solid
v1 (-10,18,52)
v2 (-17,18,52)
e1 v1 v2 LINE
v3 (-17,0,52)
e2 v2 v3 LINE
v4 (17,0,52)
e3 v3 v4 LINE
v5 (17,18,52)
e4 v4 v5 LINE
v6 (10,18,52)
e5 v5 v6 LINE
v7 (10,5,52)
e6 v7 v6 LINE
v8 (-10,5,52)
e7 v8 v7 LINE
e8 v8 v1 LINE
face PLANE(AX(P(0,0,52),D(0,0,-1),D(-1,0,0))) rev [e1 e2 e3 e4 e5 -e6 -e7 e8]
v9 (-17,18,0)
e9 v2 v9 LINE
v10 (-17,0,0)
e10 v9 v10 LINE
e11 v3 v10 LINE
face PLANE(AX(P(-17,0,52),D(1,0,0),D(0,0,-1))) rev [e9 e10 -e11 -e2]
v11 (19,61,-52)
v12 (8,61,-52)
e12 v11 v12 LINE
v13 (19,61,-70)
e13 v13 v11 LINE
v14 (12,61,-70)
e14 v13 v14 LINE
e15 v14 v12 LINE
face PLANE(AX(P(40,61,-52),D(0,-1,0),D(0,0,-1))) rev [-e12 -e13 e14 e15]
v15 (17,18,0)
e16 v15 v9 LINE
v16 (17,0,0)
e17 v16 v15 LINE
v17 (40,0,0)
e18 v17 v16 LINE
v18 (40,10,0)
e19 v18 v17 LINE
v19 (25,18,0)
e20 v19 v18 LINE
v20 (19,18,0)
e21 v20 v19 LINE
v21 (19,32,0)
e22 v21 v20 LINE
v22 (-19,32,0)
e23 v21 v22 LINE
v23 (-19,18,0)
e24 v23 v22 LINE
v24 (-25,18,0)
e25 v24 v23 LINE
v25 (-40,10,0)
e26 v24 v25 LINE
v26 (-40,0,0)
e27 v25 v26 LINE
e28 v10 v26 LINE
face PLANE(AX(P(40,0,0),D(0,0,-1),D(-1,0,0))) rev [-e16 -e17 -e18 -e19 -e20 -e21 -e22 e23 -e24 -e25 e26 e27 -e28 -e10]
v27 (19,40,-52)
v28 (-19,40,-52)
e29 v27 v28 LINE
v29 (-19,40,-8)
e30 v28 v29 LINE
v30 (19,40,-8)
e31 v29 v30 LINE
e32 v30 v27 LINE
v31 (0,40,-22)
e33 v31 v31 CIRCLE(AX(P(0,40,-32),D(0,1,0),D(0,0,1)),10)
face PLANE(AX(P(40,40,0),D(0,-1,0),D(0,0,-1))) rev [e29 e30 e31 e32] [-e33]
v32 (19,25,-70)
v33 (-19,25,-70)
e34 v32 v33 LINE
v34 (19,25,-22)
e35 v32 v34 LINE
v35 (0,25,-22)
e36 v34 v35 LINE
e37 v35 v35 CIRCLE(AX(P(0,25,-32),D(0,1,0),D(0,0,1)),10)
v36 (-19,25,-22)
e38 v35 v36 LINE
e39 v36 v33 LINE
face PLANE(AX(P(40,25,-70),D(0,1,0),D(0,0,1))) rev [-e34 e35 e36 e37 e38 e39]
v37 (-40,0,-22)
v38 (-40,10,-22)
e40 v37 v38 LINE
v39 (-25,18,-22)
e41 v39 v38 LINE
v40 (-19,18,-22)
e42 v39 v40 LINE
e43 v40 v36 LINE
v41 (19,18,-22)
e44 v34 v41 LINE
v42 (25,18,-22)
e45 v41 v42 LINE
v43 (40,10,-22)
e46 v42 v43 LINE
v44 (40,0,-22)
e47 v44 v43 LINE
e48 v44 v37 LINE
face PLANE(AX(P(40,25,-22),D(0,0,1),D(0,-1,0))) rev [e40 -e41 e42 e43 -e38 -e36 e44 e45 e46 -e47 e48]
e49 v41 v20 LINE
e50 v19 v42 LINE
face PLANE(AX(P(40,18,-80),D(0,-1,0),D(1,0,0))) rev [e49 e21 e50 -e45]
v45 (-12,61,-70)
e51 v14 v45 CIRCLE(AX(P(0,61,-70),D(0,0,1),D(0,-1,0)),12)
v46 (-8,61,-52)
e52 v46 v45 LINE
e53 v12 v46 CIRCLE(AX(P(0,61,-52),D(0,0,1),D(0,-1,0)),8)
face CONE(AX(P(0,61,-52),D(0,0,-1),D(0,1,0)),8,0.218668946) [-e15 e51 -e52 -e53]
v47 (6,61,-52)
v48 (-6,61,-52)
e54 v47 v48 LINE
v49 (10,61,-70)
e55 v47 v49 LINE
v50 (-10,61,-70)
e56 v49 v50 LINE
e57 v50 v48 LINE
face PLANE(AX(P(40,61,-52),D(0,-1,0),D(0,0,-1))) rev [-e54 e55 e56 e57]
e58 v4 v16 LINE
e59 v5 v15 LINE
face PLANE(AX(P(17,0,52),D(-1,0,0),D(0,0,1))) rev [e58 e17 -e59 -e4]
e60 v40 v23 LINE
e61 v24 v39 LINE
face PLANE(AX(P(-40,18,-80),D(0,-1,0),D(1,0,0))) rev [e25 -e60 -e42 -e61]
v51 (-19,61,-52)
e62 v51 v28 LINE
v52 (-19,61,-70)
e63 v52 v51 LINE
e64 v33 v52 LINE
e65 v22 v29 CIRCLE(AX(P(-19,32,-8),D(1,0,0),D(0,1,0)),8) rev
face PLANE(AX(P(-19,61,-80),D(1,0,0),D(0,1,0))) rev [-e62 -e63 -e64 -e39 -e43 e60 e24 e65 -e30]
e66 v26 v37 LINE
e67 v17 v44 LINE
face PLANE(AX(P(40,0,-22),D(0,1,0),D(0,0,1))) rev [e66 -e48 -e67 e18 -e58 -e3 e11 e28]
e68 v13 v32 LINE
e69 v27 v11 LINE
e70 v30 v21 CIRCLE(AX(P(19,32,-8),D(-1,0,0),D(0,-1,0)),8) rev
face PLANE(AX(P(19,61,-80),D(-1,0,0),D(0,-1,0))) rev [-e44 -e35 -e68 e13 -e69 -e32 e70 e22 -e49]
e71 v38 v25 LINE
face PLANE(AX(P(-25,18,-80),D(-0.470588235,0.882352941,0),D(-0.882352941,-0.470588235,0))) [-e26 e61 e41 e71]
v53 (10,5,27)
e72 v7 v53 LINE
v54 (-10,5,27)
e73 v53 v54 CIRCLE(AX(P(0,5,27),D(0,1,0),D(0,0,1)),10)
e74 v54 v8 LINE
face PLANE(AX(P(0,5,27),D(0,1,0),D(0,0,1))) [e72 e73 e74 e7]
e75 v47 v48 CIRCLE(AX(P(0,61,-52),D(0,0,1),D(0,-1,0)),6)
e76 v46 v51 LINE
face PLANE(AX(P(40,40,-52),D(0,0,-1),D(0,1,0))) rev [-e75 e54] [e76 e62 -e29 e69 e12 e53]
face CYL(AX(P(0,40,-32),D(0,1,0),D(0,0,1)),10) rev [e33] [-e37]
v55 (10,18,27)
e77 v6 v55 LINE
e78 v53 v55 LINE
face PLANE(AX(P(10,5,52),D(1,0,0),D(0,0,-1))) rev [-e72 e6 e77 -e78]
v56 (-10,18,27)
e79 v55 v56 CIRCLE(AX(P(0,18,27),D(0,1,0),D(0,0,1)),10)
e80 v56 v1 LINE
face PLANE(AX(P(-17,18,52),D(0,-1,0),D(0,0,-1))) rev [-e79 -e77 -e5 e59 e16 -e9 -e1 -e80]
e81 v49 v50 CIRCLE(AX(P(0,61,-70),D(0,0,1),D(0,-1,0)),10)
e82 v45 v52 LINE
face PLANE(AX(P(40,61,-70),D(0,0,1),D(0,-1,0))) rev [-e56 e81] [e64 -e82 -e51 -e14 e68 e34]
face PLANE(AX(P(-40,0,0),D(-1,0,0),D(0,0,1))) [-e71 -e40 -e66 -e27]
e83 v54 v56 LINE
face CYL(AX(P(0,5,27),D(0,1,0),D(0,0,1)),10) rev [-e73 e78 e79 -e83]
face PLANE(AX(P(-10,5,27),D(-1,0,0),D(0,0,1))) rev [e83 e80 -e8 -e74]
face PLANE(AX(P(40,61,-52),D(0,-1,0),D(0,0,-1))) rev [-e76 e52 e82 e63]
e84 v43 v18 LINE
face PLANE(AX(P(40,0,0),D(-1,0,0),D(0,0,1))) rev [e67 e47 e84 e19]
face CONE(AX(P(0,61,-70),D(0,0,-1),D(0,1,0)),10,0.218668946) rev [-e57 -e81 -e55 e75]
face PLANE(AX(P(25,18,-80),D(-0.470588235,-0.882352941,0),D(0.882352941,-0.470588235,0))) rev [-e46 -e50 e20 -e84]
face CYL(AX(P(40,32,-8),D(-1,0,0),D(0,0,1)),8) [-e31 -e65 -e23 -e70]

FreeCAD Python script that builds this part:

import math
import FreeCAD as App
import Part
import Sketcher
from FreeCAD import Vector


def edges_at(feature, points):
    """Names of the edges that pass closest to the given points."""
    edges = feature.Shape.Edges
    near = lambda p: min(range(len(edges)), key=lambda i: edges[i].distToShape(Part.Vertex(*p))[0])
    return sorted({f"Edge{near(p) + 1}" for p in points})

doc = App.newDocument("Part")
params = doc.addObject("Spreadsheet::Sheet", "Params")
for row, (alias, value) in enumerate([
    ("sketch1_width", "40 mm"),
    ("sketch1_width2", "25 mm"),
    ("sketch1_width3", "36 mm"),
    ("sketch1_height", "22 mm"),
    ("sketch1_height2", "48 mm"),
    ("pad1_length", "80 mm"),
    ("sketch2_width", "21 mm"),
    ("sketch2_height", "43 mm"),
    ("pocket1_length", "80 mm"),
    ("sketch3_width", "15 mm"),
    ("sketch3_height", "8 mm"),
    ("pocket2_length", "80 mm"),
    ("sketch4_width", "34 mm"),
    ("sketch4_height", "18 mm"),
    ("pad2_length", "52 mm"),
    ("sketch5_radius", "10 mm"),
    ("sketch5_height", "25 mm"),
    ("pocket3_length", "13 mm"),
    ("sketch6_width", "2 mm"),
    ("revolution_angle", "360 deg"),
    ("sketch7_diameter", "20 mm"),
    ("hole_diameter", "20 mm"),
    ("fillet_radius", "8 mm"),
], start=1):
    params.set(f"A{row}", alias)
    params.set(f"B{row}", "=" + value)
    params.setAlias(f"B{row}", alias)

body = doc.addObject("PartDesign::Body", "Body")

sketch1 = body.newObject("Sketcher::SketchObject", "Sketch")
sketch1.AttachmentSupport = (doc.getObject("YZ_Plane"), [""])
sketch1.MapMode = "FlatFace"
sketch1.addGeometry([
    Part.LineSegment(Vector(40, 0, 0), Vector(0, 0, 0)),
    Part.LineSegment(Vector(0, 0, 0), Vector(0, -22, 0)),
    Part.LineSegment(Vector(0, -22, 0), Vector(25, -22, 0)),
    Part.LineSegment(Vector(25, -22, 0), Vector(25, -70, 0)),
    Part.LineSegment(Vector(25, -70, 0), Vector(61, -70, 0)),
    Part.LineSegment(Vector(61, -70, 0), Vector(61, -52, 0)),
    Part.LineSegment(Vector(61, -52, 0), Vector(40, -52, 0)),
    Part.LineSegment(Vector(40, -52, 0), Vector(40, 0, 0)),
], False)
sketch1.addConstraint([
    Sketcher.Constraint("Coincident", 0, 2, 1, 1),
    Sketcher.Constraint("Coincident", 1, 2, 2, 1),
    Sketcher.Constraint("Coincident", 2, 2, 3, 1),
    Sketcher.Constraint("Coincident", 3, 2, 4, 1),
    Sketcher.Constraint("Coincident", 4, 2, 5, 1),
    Sketcher.Constraint("Coincident", 5, 2, 6, 1),
    Sketcher.Constraint("Coincident", 6, 2, 7, 1),
    Sketcher.Constraint("Coincident", 7, 2, 0, 1),
    Sketcher.Constraint("Horizontal", 0),
    Sketcher.Constraint("Vertical", 1),
    Sketcher.Constraint("Horizontal", 2),
    Sketcher.Constraint("Vertical", 3),
    Sketcher.Constraint("Horizontal", 4),
    Sketcher.Constraint("Vertical", 5),
    Sketcher.Constraint("Horizontal", 6),
    Sketcher.Constraint("Vertical", 7),
    Sketcher.Constraint("Coincident", 0, 2, -1, 1),
    Sketcher.Constraint("DistanceX", 0, 2, 0, 1, 40.0),
    Sketcher.Constraint("DistanceX", 2, 1, 2, 2, 25.0),
    Sketcher.Constraint("DistanceX", 4, 1, 4, 2, 36.0),
    Sketcher.Constraint("DistanceY", 1, 2, 1, 1, 22.0),
    Sketcher.Constraint("DistanceY", 3, 2, 3, 1, 48.0),
    Sketcher.Constraint("DistanceY", 5, 1, 5, 2, 18.0),
])
sketch1.setExpression("Constraints[17]", "Params.sketch1_width")
sketch1.setExpression("Constraints[18]", "Params.sketch1_width2")
sketch1.setExpression("Constraints[19]", "Params.sketch1_width3")
sketch1.setExpression("Constraints[20]", "Params.sketch1_height")
sketch1.setExpression("Constraints[21]", "Params.sketch1_height2")
pad1 = body.newObject("PartDesign::Pad", "Pad")
pad1.Profile = sketch1
pad1.setExpression("Length", "Params.pad1_length")
pad1.Midplane = True

sketch2 = body.newObject("Sketcher::SketchObject", "Sketch001")
sketch2.AttachmentSupport = (doc.getObject("XY_Plane"), [""])
sketch2.MapMode = "FlatFace"
sketch2.addGeometry([
    Part.LineSegment(Vector(-40, 61, 0), Vector(-40, 18, 0)),
    Part.LineSegment(Vector(-40, 18, 0), Vector(-19, 18, 0)),
    Part.LineSegment(Vector(-19, 18, 0), Vector(-19, 61, 0)),
    Part.LineSegment(Vector(-19, 61, 0), Vector(-40, 61, 0)),
    Part.LineSegment(Vector(19, 61, 0), Vector(19, 18, 0)),
    Part.LineSegment(Vector(19, 18, 0), Vector(40, 18, 0)),
    Part.LineSegment(Vector(40, 18, 0), Vector(40, 61, 0)),
    Part.LineSegment(Vector(40, 61, 0), Vector(19, 61, 0)),
], False)
sketch2.addConstraint([
    Sketcher.Constraint("Coincident", 0, 2, 1, 1),
    Sketcher.Constraint("Coincident", 1, 2, 2, 1),
    Sketcher.Constraint("Coincident", 2, 2, 3, 1),
    Sketcher.Constraint("Coincident", 3, 2, 0, 1),
    Sketcher.Constraint("Coincident", 4, 2, 5, 1),
    Sketcher.Constraint("Coincident", 5, 2, 6, 1),
    Sketcher.Constraint("Coincident", 6, 2, 7, 1),
    Sketcher.Constraint("Coincident", 7, 2, 4, 1),
    Sketcher.Constraint("Vertical", 0),
    Sketcher.Constraint("Horizontal", 1),
    Sketcher.Constraint("Vertical", 2),
    Sketcher.Constraint("Horizontal", 3),
    Sketcher.Constraint("Vertical", 4),
    Sketcher.Constraint("Horizontal", 5),
    Sketcher.Constraint("Vertical", 6),
    Sketcher.Constraint("Horizontal", 7),
    Sketcher.Constraint("Symmetric", 1, 2, 4, 2, -2),
    Sketcher.Constraint("Symmetric", 3, 2, 6, 2, -2),
    Sketcher.Constraint("DistanceX", 1, 1, 1, 2, 21.0),
    Sketcher.Constraint("DistanceY", 0, 2, 0, 1, 43.0),
    Sketcher.Constraint("DistanceX", 0, 2, -1, 1, 40.0),
    Sketcher.Constraint("DistanceY", -1, 1, 0, 2, 18.0),
])
sketch2.setExpression("Constraints[18]", "Params.sketch2_width")
sketch2.setExpression("Constraints[19]", "Params.sketch2_height")
pocket1 = body.newObject("PartDesign::Pocket", "Pocket")
pocket1.Profile = sketch2
pocket1.setExpression("Length", "Params.pocket1_length")

sketch3 = body.newObject("Sketcher::SketchObject", "Sketch002")
sketch3.AttachmentSupport = (doc.getObject("XY_Plane"), [""])
sketch3.MapMode = "FlatFace"
sketch3.addGeometry([
    Part.LineSegment(Vector(25, 18, 0), Vector(40, 10, 0)),
    Part.LineSegment(Vector(40, 10, 0), Vector(40, 18, 0)),
    Part.LineSegment(Vector(40, 18, 0), Vector(25, 18, 0)),
], False)
sketch3.addConstraint([
    Sketcher.Constraint("Coincident", 0, 2, 1, 1),
    Sketcher.Constraint("Coincident", 1, 2, 2, 1),
    Sketcher.Constraint("Coincident", 2, 2, 0, 1),
    Sketcher.Constraint("Vertical", 1),
    Sketcher.Constraint("Horizontal", 2),
    Sketcher.Constraint("DistanceX", 2, 2, 2, 1, 15.0),
    Sketcher.Constraint("DistanceY", 1, 1, 1, 2, 8.0),
    Sketcher.Constraint("DistanceX", -1, 1, 0, 2, 40.0),
    Sketcher.Constraint("DistanceY", -1, 1, 0, 2, 10.0),
])
sketch3.setExpression("Constraints[5]", "Params.sketch3_width")
sketch3.setExpression("Constraints[6]", "Params.sketch3_height")
pocket2 = body.newObject("PartDesign::Pocket", "Pocket001")
pocket2.Profile = sketch3
pocket2.setExpression("Length", "Params.pocket2_length")
doc.recompute()

mirrored = body.newObject("PartDesign::Mirrored", "Mirrored")
mirrored.Originals = [pocket2]
mirrored.MirrorPlane = (doc.getObject("YZ_Plane"), [""])
body.Tip = mirrored

sketch4 = body.newObject("Sketcher::SketchObject", "Sketch003")
sketch4.AttachmentSupport = (doc.getObject("XY_Plane"), [""])
sketch4.MapMode = "FlatFace"
sketch4.addGeometry([
    Part.LineSegment(Vector(-17, 18, 0), Vector(-17, 0, 0)),
    Part.LineSegment(Vector(-17, 0, 0), Vector(17, 0, 0)),
    Part.LineSegment(Vector(17, 0, 0), Vector(17, 18, 0)),
    Part.LineSegment(Vector(17, 18, 0), Vector(-17, 18, 0)),
], False)
sketch4.addConstraint([
    Sketcher.Constraint("Coincident", 0, 2, 1, 1),
    Sketcher.Constraint("Coincident", 1, 2, 2, 1),
    Sketcher.Constraint("Coincident", 2, 2, 3, 1),
    Sketcher.Constraint("Coincident", 3, 2, 0, 1),
    Sketcher.Constraint("Vertical", 0),
    Sketcher.Constraint("Horizontal", 1),
    Sketcher.Constraint("Vertical", 2),
    Sketcher.Constraint("Horizontal", 3),
    Sketcher.Constraint("Symmetric", 0, 2, 1, 2, -1, 1),
    Sketcher.Constraint("DistanceX", 1, 1, 1, 2, 34.0),
    Sketcher.Constraint("DistanceY", 0, 2, 0, 1, 18.0),
])
sketch4.setExpression("Constraints[9]", "Params.sketch4_width")
sketch4.setExpression("Constraints[10]", "Params.sketch4_height")
pad2 = body.newObject("PartDesign::Pad", "Pad001")
pad2.Profile = sketch4
pad2.setExpression("Length", "Params.pad2_length")

sketch5 = body.newObject("Sketcher::SketchObject", "Sketch004")
sketch5.AttachmentSupport = (doc.getObject("XZ_Plane"), [""])
sketch5.MapMode = "FlatFace"
sketch5.AttachmentOffset = App.Placement(Vector(0, 0, -18), App.Rotation())
sketch5.addGeometry([
    Part.LineSegment(Vector(-10, 27, 0), Vector(-10, 52, 0)),
    Part.LineSegment(Vector(-10, 52, 0), Vector(10, 52, 0)),
    Part.LineSegment(Vector(10, 52, 0), Vector(10, 27, 0)),
    Part.ArcOfCircle(Part.Circle(Vector(0, 27, 0), Vector(0, 0, 1), 10), math.radians(180), math.radians(360)),
], False)
sketch5.addConstraint([
    Sketcher.Constraint("Coincident", 0, 2, 1, 1),
    Sketcher.Constraint("Coincident", 1, 2, 2, 1),
    Sketcher.Constraint("Tangent", 2, 2, 3, 2),
    Sketcher.Constraint("Tangent", 3, 1, 0, 1),
    Sketcher.Constraint("Vertical", 0),
    Sketcher.Constraint("Horizontal", 1),
    Sketcher.Constraint("Vertical", 2),
    Sketcher.Constraint("PointOnObject", 3, 3, -2),
    Sketcher.Constraint("Radius", 3, 10.0),
    Sketcher.Constraint("DistanceY", 0, 1, 0, 2, 25.0),
    Sketcher.Constraint("DistanceY", -1, 1, 3, 3, 27.0),
])
sketch5.setExpression("Constraints[8]", "Params.sketch5_radius")
sketch5.setExpression("Constraints[9]", "Params.sketch5_height")
pocket3 = body.newObject("PartDesign::Pocket", "Pocket002")
pocket3.Profile = sketch5
pocket3.setExpression("Length", "Params.pocket3_length")
pocket3.Reversed = True

sketch6 = body.newObject("Sketcher::SketchObject", "Sketch005")
sketch6.AttachmentSupport = (doc.getObject("XZ_Plane"), [""])
sketch6.MapMode = "FlatFace"
sketch6.AttachmentOffset = App.Placement(Vector(0, 0, -61), App.Rotation())
sketch6.addGeometry([
    Part.LineSegment(Vector(10, -70, 0), Vector(6, -52, 0)),
    Part.LineSegment(Vector(6, -52, 0), Vector(8, -52, 0)),
    Part.LineSegment(Vector(8, -52, 0), Vector(12, -70, 0)),
    Part.LineSegment(Vector(12, -70, 0), Vector(10, -70, 0)),
], False)
sketch6.addConstraint([
    Sketcher.Constraint("Coincident", 0, 2, 1, 1),
    Sketcher.Constraint("Coincident", 1, 2, 2, 1),
    Sketcher.Constraint("Coincident", 2, 2, 3, 1),
    Sketcher.Constraint("Coincident", 3, 2, 0, 1),
    Sketcher.Constraint("Horizontal", 1),
    Sketcher.Constraint("Horizontal", 3),
    Sketcher.Constraint("Parallel", 0, 2),
    Sketcher.Constraint("DistanceX", 1, 1, 1, 2, 2.0),
    Sketcher.Constraint("DistanceX", -1, 1, 0, 2, 6.0),
    Sketcher.Constraint("DistanceY", 0, 2, -1, 1, 52.0),
    Sketcher.Constraint("DistanceX", -1, 1, 2, 2, 12.0),
    Sketcher.Constraint("DistanceY", 2, 2, -1, 1, 70.0),
])
sketch6.setExpression("Constraints[7]", "Params.sketch6_width")
revolution = body.newObject("PartDesign::Revolution", "Revolution")
revolution.Profile = sketch6
revolution.ReferenceAxis = (sketch6, ["V_Axis"])
revolution.setExpression("Angle", "Params.revolution_angle")

sketch7 = body.newObject("Sketcher::SketchObject", "Sketch006")
sketch7.AttachmentSupport = (doc.getObject("XZ_Plane"), [""])
sketch7.MapMode = "FlatFace"
sketch7.AttachmentOffset = App.Placement(Vector(0, 0, -40), App.Rotation())
sketch7.addGeometry(Part.Circle(Vector(0, -32, 0), Vector(0, 0, 1), 10), False)
sketch7.addConstraint([
    Sketcher.Constraint("PointOnObject", 0, 3, -2),
    Sketcher.Constraint("Diameter", 0, 20.0),
    Sketcher.Constraint("DistanceY", 0, 3, -1, 1, 32.0),
])
sketch7.setExpression("Constraints[1]", "Params.sketch7_diameter")
doc.recompute()
hole = body.newObject("PartDesign::Hole", "Hole")
hole.Profile = sketch7
hole.ThreadType = "None"
hole.setExpression("Diameter", "Params.hole_diameter")
hole.DepthType = "ThroughAll"
hole.Reversed = True
doc.recompute()

fillet = body.newObject("PartDesign::Fillet", "Fillet")
fillet.Base = (hole, edges_at(hole, [(0, 40, 0)]))
fillet.setExpression("Radius", "Params.fillet_radius")

doc.recompute()
